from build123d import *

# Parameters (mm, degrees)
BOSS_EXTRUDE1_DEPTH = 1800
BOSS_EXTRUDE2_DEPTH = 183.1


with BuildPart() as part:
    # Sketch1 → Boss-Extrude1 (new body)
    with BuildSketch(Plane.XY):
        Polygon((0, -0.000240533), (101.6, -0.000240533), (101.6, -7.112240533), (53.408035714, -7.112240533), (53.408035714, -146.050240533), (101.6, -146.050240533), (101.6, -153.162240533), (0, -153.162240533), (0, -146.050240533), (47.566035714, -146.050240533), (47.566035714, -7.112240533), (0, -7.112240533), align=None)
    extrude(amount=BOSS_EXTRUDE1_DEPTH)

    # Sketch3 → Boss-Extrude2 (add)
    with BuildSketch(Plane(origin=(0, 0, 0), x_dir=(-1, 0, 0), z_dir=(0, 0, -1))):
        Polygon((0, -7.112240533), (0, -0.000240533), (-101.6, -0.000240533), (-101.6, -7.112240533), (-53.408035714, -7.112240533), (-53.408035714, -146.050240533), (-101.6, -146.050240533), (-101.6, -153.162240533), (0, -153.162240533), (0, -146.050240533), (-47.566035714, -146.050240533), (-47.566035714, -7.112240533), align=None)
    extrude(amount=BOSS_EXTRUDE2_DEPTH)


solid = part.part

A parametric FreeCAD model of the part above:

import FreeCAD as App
import Part
import Sketcher

V = App.Vector
Q = App.Units.Quantity

doc = App.newDocument("Part")
body = doc.addObject("PartDesign::Body", "Body")

# Sketch on XY plane
sketch1 = doc.addObject("Sketcher::SketchObject", "Sketch")
body.addObject(sketch1)
sketch1.AttachmentSupport = (doc.XY_Plane, [""])
sketch1.MapMode = "FlatFace"
sketch1.addGeometry(Part.LineSegment(V(102, 0, 0), V(0, 0, 0)), False)
sketch1.addGeometry(Part.LineSegment(V(0, 0, 0), V(0, -7, 0)), False)
sketch1.addGeometry(Part.LineSegment(V(0, -7, 0), V(48, -7, 0)), False)
sketch1.addGeometry(Part.LineSegment(V(48, -7, 0), V(48, -146, 0)), False)
sketch1.addGeometry(Part.LineSegment(V(48, -146, 0), V(0, -146, 0)), False)
sketch1.addGeometry(Part.LineSegment(V(0, -146, 0), V(0, -153, 0)), False)
sketch1.addGeometry(Part.LineSegment(V(0, -153, 0), V(102, -153, 0)), False)
sketch1.addGeometry(Part.LineSegment(V(102, -153, 0), V(102, -146, 0)), False)
sketch1.addGeometry(Part.LineSegment(V(102, -146, 0), V(53, -146, 0)), False)
sketch1.addGeometry(Part.LineSegment(V(53, -146, 0), V(53, -7, 0)), False)
sketch1.addGeometry(Part.LineSegment(V(53, -7, 0), V(102, -7, 0)), False)
sketch1.addGeometry(Part.LineSegment(V(102, -7, 0), V(102, 0, 0)), False)
sketch1.addConstraint(Sketcher.Constraint("Coincident", 0, 2, 1, 1))
sketch1.addConstraint(Sketcher.Constraint("Coincident", 1, 2, 2, 1))
sketch1.addConstraint(Sketcher.Constraint("Coincident", 2, 2, 3, 1))
sketch1.addConstraint(Sketcher.Constraint("Coincident", 3, 2, 4, 1))
sketch1.addConstraint(Sketcher.Constraint("Coincident", 4, 2, 5, 1))
sketch1.addConstraint(Sketcher.Constraint("Coincident", 5, 2, 6, 1))
sketch1.addConstraint(Sketcher.Constraint("Coincident", 6, 2, 7, 1))
sketch1.addConstraint(Sketcher.Constraint("Coincident", 7, 2, 8, 1))
sketch1.addConstraint(Sketcher.Constraint("Coincident", 8, 2, 9, 1))
sketch1.addConstraint(Sketcher.Constraint("Coincident", 9, 2, 10, 1))
sketch1.addConstraint(Sketcher.Constraint("Coincident", 10, 2, 11, 1))
sketch1.addConstraint(Sketcher.Constraint("Coincident", 11, 2, 0, 1))
sketch1.addConstraint(Sketcher.Constraint("Horizontal", 0))
sketch1.addConstraint(Sketcher.Constraint("Vertical", 1))
sketch1.addConstraint(Sketcher.Constraint("Horizontal", 2))
sketch1.addConstraint(Sketcher.Constraint("Vertical", 3))
sketch1.addConstraint(Sketcher.Constraint("Horizontal", 4))
sketch1.addConstraint(Sketcher.Constraint("Vertical", 5))
sketch1.addConstraint(Sketcher.Constraint("Horizontal", 6))
sketch1.addConstraint(Sketcher.Constraint("Vertical", 7))
sketch1.addConstraint(Sketcher.Constraint("Horizontal", 8))
sketch1.addConstraint(Sketcher.Constraint("Vertical", 9))
sketch1.addConstraint(Sketcher.Constraint("Horizontal", 10))
sketch1.addConstraint(Sketcher.Constraint("Vertical", 11))
sketch1.addConstraint(Sketcher.Constraint("PointOnObject", 0, 2, -2))
sketch1.addConstraint(Sketcher.Constraint("PointOnObject", 4, 2, -2))
sketch1.addConstraint(Sketcher.Constraint("Horizontal", 4, 2, 7, 2))
sketch1.addConstraint(Sketcher.Constraint("Horizontal", 2, 2, 9, 2))
sketch1.addConstraint(Sketcher.Constraint("Vertical", 7, 2, 10, 2))
sketch1.addConstraint(Sketcher.Constraint("Equal", 1, 5))
sketch1.addConstraint(Sketcher.Constraint("DistanceX", 0, 2, 0, 1, Q("4 in")))
sketch1.addConstraint(Sketcher.Constraint("DistanceY", 1, 2, 1, 1, Q("0.28 in")))
sketch1.addConstraint(Sketcher.Constraint("DistanceY", 3, 2, 3, 1, Q("5.47 in")))
sketch1.addConstraint(Sketcher.Constraint("DistanceX", 3, 2, 8, 2, Q("0.23 in")))
sketch1.addConstraint(Sketcher.Constraint("DistanceX", 2, 1, 2, 2, 47.566036))
sketch1.addConstraint(Sketcher.Constraint("DistanceY", 0, 2, -1, 1, 0.000241))
pad1 = doc.addObject("PartDesign::Pad", "Pad")
body.addObject(pad1)
pad1.Profile = sketch1
pad1.Length = 1800

# Sketch on XY plane
sketch2 = doc.addObject("Sketcher::SketchObject", "Sketch001")
body.addObject(sketch2)
sketch2.AttachmentSupport = (doc.XY_Plane, [""])
sketch2.MapMode = "FlatFace"
sketch2.addGeometry(Part.LineSegment(V(0, -7, 0), V(0, 0, 0)), False)
sketch2.addGeometry(Part.LineSegment(V(0, 0, 0), V(102, 0, 0)), False)
sketch2.addGeometry(Part.LineSegment(V(102, 0, 0), V(102, -7, 0)), False)
sketch2.addGeometry(Part.LineSegment(V(102, -7, 0), V(53, -7, 0)), False)
sketch2.addGeometry(Part.LineSegment(V(53, -7, 0), V(53, -146, 0)), False)
sketch2.addGeometry(Part.LineSegment(V(53, -146, 0), V(102, -146, 0)), False)
sketch2.addGeometry(Part.LineSegment(V(102, -146, 0), V(102, -153, 0)), False)
sketch2.addGeometry(Part.LineSegment(V(102, -153, 0), V(0, -153, 0)), False)
sketch2.addGeometry(Part.LineSegment(V(0, -153, 0), V(0, -146, 0)), False)
sketch2.addGeometry(Part.LineSegment(V(0, -146, 0), V(48, -146, 0)), False)
sketch2.addGeometry(Part.LineSegment(V(48, -146, 0), V(48, -7, 0)), False)
sketch2.addGeometry(Part.LineSegment(V(48, -7, 0), V(0, -7, 0)), False)
sketch2.addConstraint(Sketcher.Constraint("Coincident", 0, 2, 1, 1))
sketch2.addConstraint(Sketcher.Constraint("Coincident", 1, 2, 2, 1))
sketch2.addConstraint(Sketcher.Constraint("Coincident", 2, 2, 3, 1))
sketch2.addConstraint(Sketcher.Constraint("Coincident", 3, 2, 4, 1))
sketch2.addConstraint(Sketcher.Constraint("Coincident", 4, 2, 5, 1))
sketch2.addConstraint(Sketcher.Constraint("Coincident", 5, 2, 6, 1))
sketch2.addConstraint(Sketcher.Constraint("Coincident", 6, 2, 7, 1))
sketch2.addConstraint(Sketcher.Constraint("Coincident", 7, 2, 8, 1))
sketch2.addConstraint(Sketcher.Constraint("Coincident", 8, 2, 9, 1))
sketch2.addConstraint(Sketcher.Constraint("Coincident", 9, 2, 10, 1))
sketch2.addConstraint(Sketcher.Constraint("Coincident", 10, 2, 11, 1))
sketch2.addConstraint(Sketcher.Constraint("Coincident", 11, 2, 0, 1))
sketch2.addConstraint(Sketcher.Constraint("Vertical", 0))
sketch2.addConstraint(Sketcher.Constraint("Horizontal", 1))
sketch2.addConstraint(Sketcher.Constraint("Vertical", 2))
sketch2.addConstraint(Sketcher.Constraint("Horizontal", 3))
sketch2.addConstraint(Sketcher.Constraint("Vertical", 4))
sketch2.addConstraint(Sketcher.Constraint("Horizontal", 5))
sketch2.addConstraint(Sketcher.Constraint("Vertical", 6))
sketch2.addConstraint(Sketcher.Constraint("Horizontal", 7))
sketch2.addConstraint(Sketcher.Constraint("Vertical", 8))
sketch2.addConstraint(Sketcher.Constraint("Horizontal", 9))
sketch2.addConstraint(Sketcher.Constraint("Vertical", 10))
sketch2.addConstraint(Sketcher.Constraint("Horizontal", 11))
sketch2.addConstraint(Sketcher.Constraint("PointOnObject", 0, 2, -2))
sketch2.addConstraint(Sketcher.Constraint("PointOnObject", 7, 2, -2))
sketch2.addConstraint(Sketcher.Constraint("Horizontal", 5, 2, 8, 2))
sketch2.addConstraint(Sketcher.Constraint("Horizontal", 3, 2, 10, 2))
sketch2.addConstraint(Sketcher.Constraint("Vertical", 2, 2, 5, 2))
sketch2.addConstraint(Sketcher.Constraint("Equal", 2, 6))
sketch2.addConstraint(Sketcher.Constraint("DistanceX", 1, 1, 1, 2, Q("4 in")))
sketch2.addConstraint(Sketcher.Constraint("DistanceY", 0, 1, 0, 2, Q("0.28 in")))
sketch2.addConstraint(Sketcher.Constraint("DistanceY", 4, 2, 4, 1, Q("5.47 in")))
sketch2.addConstraint(Sketcher.Constraint("DistanceX", 9, 2, 4, 2, Q("0.23 in")))
sketch2.addConstraint(Sketcher.Constraint("DistanceX", 3, 2, 3, 1, 48.191964))
sketch2.addConstraint(Sketcher.Constraint("DistanceY", 0, 2, -1, 1, 0.000241))
pad2 = doc.addObject("PartDesign::Pad", "Pad001")
body.addObject(pad2)
pad2.Profile = sketch2
pad2.Length = 183.1
pad2.Reversed = True

doc.recompute()
